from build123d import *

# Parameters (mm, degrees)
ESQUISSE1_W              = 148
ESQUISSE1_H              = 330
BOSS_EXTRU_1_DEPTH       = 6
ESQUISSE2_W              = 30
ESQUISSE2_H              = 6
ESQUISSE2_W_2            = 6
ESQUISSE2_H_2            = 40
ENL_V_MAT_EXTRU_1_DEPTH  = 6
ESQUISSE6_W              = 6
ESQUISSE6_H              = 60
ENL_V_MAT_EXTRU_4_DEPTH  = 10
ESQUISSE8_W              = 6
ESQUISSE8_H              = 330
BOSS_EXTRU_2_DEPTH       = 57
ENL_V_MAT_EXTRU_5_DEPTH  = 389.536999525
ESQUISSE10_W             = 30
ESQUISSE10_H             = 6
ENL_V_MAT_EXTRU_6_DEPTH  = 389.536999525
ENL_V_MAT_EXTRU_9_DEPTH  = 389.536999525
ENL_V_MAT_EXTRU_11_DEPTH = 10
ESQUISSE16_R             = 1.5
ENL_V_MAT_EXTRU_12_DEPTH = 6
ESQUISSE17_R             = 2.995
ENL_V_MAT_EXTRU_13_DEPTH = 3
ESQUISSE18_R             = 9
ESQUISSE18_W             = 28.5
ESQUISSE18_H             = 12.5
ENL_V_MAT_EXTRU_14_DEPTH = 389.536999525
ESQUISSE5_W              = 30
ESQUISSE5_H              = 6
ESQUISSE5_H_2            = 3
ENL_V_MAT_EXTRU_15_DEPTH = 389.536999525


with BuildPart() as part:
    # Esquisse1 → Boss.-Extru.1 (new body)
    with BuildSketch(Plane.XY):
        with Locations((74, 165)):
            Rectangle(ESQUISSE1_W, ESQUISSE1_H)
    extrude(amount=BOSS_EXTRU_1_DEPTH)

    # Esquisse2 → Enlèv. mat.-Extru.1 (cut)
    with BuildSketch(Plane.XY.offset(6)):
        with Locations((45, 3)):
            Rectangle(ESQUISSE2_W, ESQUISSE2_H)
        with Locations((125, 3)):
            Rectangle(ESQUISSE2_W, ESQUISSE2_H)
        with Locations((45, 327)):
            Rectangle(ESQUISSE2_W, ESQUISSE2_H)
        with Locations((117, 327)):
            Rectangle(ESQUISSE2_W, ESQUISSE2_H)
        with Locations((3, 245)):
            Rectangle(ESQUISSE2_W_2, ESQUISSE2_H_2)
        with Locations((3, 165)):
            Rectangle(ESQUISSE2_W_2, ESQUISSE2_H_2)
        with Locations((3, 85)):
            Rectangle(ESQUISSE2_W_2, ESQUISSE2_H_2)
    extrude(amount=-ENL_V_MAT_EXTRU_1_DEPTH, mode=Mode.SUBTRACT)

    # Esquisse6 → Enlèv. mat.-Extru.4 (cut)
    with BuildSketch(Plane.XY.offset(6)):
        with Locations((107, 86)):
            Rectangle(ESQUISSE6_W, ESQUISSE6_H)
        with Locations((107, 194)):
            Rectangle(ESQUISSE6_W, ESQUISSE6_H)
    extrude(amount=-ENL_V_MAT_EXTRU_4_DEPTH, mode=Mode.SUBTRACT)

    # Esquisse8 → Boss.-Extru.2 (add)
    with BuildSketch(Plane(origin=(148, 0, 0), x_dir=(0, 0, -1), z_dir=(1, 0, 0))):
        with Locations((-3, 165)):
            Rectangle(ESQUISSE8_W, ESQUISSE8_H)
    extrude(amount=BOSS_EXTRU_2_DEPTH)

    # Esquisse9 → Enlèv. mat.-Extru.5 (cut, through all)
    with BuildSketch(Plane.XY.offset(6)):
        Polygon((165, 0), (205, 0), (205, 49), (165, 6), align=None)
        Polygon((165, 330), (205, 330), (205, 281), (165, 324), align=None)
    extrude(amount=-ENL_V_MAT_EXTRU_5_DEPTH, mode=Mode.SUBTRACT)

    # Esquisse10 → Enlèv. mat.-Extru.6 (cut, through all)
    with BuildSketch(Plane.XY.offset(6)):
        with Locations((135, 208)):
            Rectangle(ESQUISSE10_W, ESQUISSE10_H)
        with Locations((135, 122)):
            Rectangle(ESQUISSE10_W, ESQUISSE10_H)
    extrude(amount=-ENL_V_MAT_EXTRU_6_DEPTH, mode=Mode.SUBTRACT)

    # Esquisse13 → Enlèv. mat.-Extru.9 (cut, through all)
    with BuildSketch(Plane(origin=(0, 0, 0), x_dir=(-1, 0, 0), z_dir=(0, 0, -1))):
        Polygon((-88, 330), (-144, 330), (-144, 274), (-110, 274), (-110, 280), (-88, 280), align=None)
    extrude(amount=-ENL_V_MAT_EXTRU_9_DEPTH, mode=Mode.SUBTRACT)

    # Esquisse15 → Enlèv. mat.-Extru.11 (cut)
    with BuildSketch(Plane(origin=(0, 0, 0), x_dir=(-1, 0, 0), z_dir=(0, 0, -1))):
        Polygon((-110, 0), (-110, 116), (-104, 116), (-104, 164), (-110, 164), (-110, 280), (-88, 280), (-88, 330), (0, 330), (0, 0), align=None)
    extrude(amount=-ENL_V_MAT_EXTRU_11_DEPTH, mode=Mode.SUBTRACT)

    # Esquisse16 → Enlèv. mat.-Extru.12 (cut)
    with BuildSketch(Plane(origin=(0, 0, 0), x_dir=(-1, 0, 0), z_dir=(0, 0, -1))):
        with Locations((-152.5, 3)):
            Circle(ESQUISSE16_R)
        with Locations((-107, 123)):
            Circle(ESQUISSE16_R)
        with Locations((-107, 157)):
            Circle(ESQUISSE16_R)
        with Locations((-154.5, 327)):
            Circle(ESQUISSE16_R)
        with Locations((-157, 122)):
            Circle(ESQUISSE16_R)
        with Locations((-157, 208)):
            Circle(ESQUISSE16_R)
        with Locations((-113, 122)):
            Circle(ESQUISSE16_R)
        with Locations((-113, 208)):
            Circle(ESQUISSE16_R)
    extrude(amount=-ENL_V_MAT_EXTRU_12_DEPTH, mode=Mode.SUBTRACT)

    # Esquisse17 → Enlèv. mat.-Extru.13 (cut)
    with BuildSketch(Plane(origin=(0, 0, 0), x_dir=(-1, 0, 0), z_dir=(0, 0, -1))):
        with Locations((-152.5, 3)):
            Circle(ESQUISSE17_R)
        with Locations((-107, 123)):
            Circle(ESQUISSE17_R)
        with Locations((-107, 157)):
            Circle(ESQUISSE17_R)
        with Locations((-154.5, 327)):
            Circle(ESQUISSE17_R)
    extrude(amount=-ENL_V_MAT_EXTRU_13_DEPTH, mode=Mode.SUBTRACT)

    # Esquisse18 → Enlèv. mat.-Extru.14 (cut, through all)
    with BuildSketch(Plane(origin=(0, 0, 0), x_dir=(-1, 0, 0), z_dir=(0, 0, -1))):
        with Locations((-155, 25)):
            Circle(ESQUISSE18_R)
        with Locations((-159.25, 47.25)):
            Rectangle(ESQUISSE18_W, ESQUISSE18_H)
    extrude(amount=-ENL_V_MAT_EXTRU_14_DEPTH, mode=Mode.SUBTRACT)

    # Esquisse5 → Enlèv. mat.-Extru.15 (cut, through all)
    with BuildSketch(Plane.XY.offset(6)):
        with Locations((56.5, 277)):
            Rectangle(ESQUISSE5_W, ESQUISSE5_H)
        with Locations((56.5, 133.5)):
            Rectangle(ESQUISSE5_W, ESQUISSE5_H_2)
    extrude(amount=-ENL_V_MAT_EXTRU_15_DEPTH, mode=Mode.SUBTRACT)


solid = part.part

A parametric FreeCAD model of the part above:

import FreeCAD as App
import Part
import Sketcher

V = App.Vector

doc = App.newDocument("Part")
body = doc.addObject("PartDesign::Body", "Body")

sketch1 = doc.addObject("Sketcher::SketchObject", "Sketch")
body.addObject(sketch1)
sketch1.AttachmentSupport = (doc.XY_Plane, [""])
sketch1.MapMode = "FlatFace"
sketch1.addGeometry([
    Part.LineSegment(V(0, 330, 0), V(0, 0, 0)),
    Part.LineSegment(V(0, 0, 0), V(148, 0, 0)),
    Part.LineSegment(V(148, 0, 0), V(148, 330, 0)),
    Part.LineSegment(V(148, 330, 0), V(0, 330, 0)),
], False)
sketch1.addConstraint([
    Sketcher.Constraint("Coincident", 0, 2, 1, 1),
    Sketcher.Constraint("Coincident", 1, 2, 2, 1),
    Sketcher.Constraint("Coincident", 2, 2, 3, 1),
    Sketcher.Constraint("Coincident", 3, 2, 0, 1),
    Sketcher.Constraint("Vertical", 0),
    Sketcher.Constraint("Horizontal", 1),
    Sketcher.Constraint("Vertical", 2),
    Sketcher.Constraint("Horizontal", 3),
    Sketcher.Constraint("Coincident", 0, 2, -1, 1),
    Sketcher.Constraint("DistanceX", 1, 1, 1, 2, 148.0),
    Sketcher.Constraint("DistanceY", 0, 2, 0, 1, 330.0),
])
pad1 = doc.addObject("PartDesign::Pad", "Pad")
body.addObject(pad1)
pad1.Profile = sketch1
pad1.Length = 6

sketch2 = doc.addObject("Sketcher::SketchObject", "Sketch001")
body.addObject(sketch2)
sketch2.AttachmentSupport = (doc.XY_Plane, [""])
sketch2.MapMode = "FlatFace"
sketch2.AttachmentOffset = App.Placement(V(0, 0, 6), App.Rotation())
sketch2.addGeometry([
    Part.LineSegment(V(30, 6, 0), V(30, 0, 0)),
    Part.LineSegment(V(30, 0, 0), V(60, 0, 0)),
    Part.LineSegment(V(60, 0, 0), V(60, 6, 0)),
    Part.LineSegment(V(60, 6, 0), V(30, 6, 0)),
    Part.LineSegment(V(110, 6, 0), V(110, 0, 0)),
    Part.LineSegment(V(110, 0, 0), V(140, 0, 0)),
    Part.LineSegment(V(140, 0, 0), V(140, 6, 0)),
    Part.LineSegment(V(140, 6, 0), V(110, 6, 0)),
    Part.LineSegment(V(30, 330, 0), V(30, 324, 0)),
    Part.LineSegment(V(30, 324, 0), V(60, 324, 0)),
    Part.LineSegment(V(60, 324, 0), V(60, 330, 0)),
    Part.LineSegment(V(60, 330, 0), V(30, 330, 0)),
    Part.LineSegment(V(102, 330, 0), V(102, 324, 0)),
    Part.LineSegment(V(102, 324, 0), V(132, 324, 0)),
    Part.LineSegment(V(132, 324, 0), V(132, 330, 0)),
    Part.LineSegment(V(132, 330, 0), V(102, 330, 0)),
    Part.LineSegment(V(0, 265, 0), V(0, 225, 0)),
    Part.LineSegment(V(0, 225, 0), V(6, 225, 0)),
    Part.LineSegment(V(6, 225, 0), V(6, 265, 0)),
    Part.LineSegment(V(6, 265, 0), V(0, 265, 0)),
    Part.LineSegment(V(0, 185, 0), V(0, 145, 0)),
    Part.LineSegment(V(0, 145, 0), V(6, 145, 0)),
    Part.LineSegment(V(6, 145, 0), V(6, 185, 0)),
    Part.LineSegment(V(6, 185, 0), V(0, 185, 0)),
    Part.LineSegment(V(0, 105, 0), V(0, 65, 0)),
    Part.LineSegment(V(0, 65, 0), V(6, 65, 0)),
    Part.LineSegment(V(6, 65, 0), V(6, 105, 0)),
    Part.LineSegment(V(6, 105, 0), V(0, 105, 0)),
], False)
sketch2.addConstraint([
    Sketcher.Constraint("Coincident", 0, 2, 1, 1),
    Sketcher.Constraint("Coincident", 1, 2, 2, 1),
    Sketcher.Constraint("Coincident", 2, 2, 3, 1),
    Sketcher.Constraint("Coincident", 3, 2, 0, 1),
    Sketcher.Constraint("Coincident", 4, 2, 5, 1),
    Sketcher.Constraint("Coincident", 5, 2, 6, 1),
    Sketcher.Constraint("Coincident", 6, 2, 7, 1),
    Sketcher.Constraint("Coincident", 7, 2, 4, 1),
    Sketcher.Constraint("Coincident", 8, 2, 9, 1),
    Sketcher.Constraint("Coincident", 9, 2, 10, 1),
    Sketcher.Constraint("Coincident", 10, 2, 11, 1),
    Sketcher.Constraint("Coincident", 11, 2, 8, 1),
    Sketcher.Constraint("Coincident", 12, 2, 13, 1),
    Sketcher.Constraint("Coincident", 13, 2, 14, 1),
    Sketcher.Constraint("Coincident", 14, 2, 15, 1),
    Sketcher.Constraint("Coincident", 15, 2, 12, 1),
    Sketcher.Constraint("Coincident", 16, 2, 17, 1),
    Sketcher.Constraint("Coincident", 17, 2, 18, 1),
    Sketcher.Constraint("Coincident", 18, 2, 19, 1),
    Sketcher.Constraint("Coincident", 19, 2, 16, 1),
    Sketcher.Constraint("Coincident", 20, 2, 21, 1),
    Sketcher.Constraint("Coincident", 21, 2, 22, 1),
    Sketcher.Constraint("Coincident", 22, 2, 23, 1),
    Sketcher.Constraint("Coincident", 23, 2, 20, 1),
    Sketcher.Constraint("Coincident", 24, 2, 25, 1),
    Sketcher.Constraint("Coincident", 25, 2, 26, 1),
    Sketcher.Constraint("Coincident", 26, 2, 27, 1),
    Sketcher.Constraint("Coincident", 27, 2, 24, 1),
    Sketcher.Constraint("Vertical", 0),
    Sketcher.Constraint("Horizontal", 1),
    Sketcher.Constraint("Vertical", 2),
    Sketcher.Constraint("Horizontal", 3),
    Sketcher.Constraint("Vertical", 4),
    Sketcher.Constraint("Horizontal", 5),
    Sketcher.Constraint("Vertical", 6),
    Sketcher.Constraint("Horizontal", 7),
    Sketcher.Constraint("Vertical", 8),
    Sketcher.Constraint("Horizontal", 9),
    Sketcher.Constraint("Vertical", 10),
    Sketcher.Constraint("Horizontal", 11),
    Sketcher.Constraint("Vertical", 12),
    Sketcher.Constraint("Horizontal", 13),
    Sketcher.Constraint("Vertical", 14),
    Sketcher.Constraint("Horizontal", 15),
    Sketcher.Constraint("Vertical", 16),
    Sketcher.Constraint("Horizontal", 17),
    Sketcher.Constraint("Vertical", 18),
    Sketcher.Constraint("Horizontal", 19),
    Sketcher.Constraint("Vertical", 20),
    Sketcher.Constraint("Horizontal", 21),
    Sketcher.Constraint("Vertical", 22),
    Sketcher.Constraint("Horizontal", 23),
    Sketcher.Constraint("Vertical", 24),
    Sketcher.Constraint("Horizontal", 25),
    Sketcher.Constraint("Vertical", 26),
    Sketcher.Constraint("Horizontal", 27),
    Sketcher.Constraint("PointOnObject", 0, 2, -1),
    Sketcher.Constraint("PointOnObject", 4, 2, -1),
    Sketcher.Constraint("PointOnObject", 16, 2, -2),
    Sketcher.Constraint("PointOnObject", 20, 2, -2),
    Sketcher.Constraint("PointOnObject", 24, 2, -2),
    Sketcher.Constraint("Horizontal", 3, 2, 6, 2),
    Sketcher.Constraint("Horizontal", 9, 2, 12, 2),
    Sketcher.Constraint("Horizontal", 11, 2, 14, 2),
    Sketcher.Constraint("Vertical", 3, 2, 8, 2),
    Sketcher.Constraint("Vertical", 2, 2, 9, 2),
    Sketcher.Constraint("Vertical", 18, 2, 21, 2),
    Sketcher.Constraint("Vertical", 22, 2, 25, 2),
    Sketcher.Constraint("Equal", 3, 5),
    Sketcher.Constraint("Equal", 11, 13),
    Sketcher.Constraint("Equal", 27, 0),
    Sketcher.Constraint("Equal", 6, 8),
    Sketcher.Constraint("Equal", 18, 20),
    Sketcher.Constraint("Equal", 22, 24),
    Sketcher.Constraint("DistanceX", 1, 1, 1, 2, 30.0),
    Sketcher.Constraint("DistanceX", 17, 1, 17, 2, 6.0),
    Sketcher.Constraint("DistanceY", 16, 2, 16, 1, 40.0),
    Sketcher.Constraint("DistanceX", -1, 1, 0, 2, 30.0),
    Sketcher.Constraint("DistanceX", -1, 1, 4, 2, 110.0),
    Sketcher.Constraint("DistanceY", -1, 1, 8, 2, 324.0),
    Sketcher.Constraint("DistanceX", -1, 1, 12, 2, 102.0),
    Sketcher.Constraint("DistanceY", -1, 1, 16, 2, 225.0),
    Sketcher.Constraint("DistanceY", -1, 1, 20, 2, 145.0),
    Sketcher.Constraint("DistanceY", -1, 1, 24, 2, 65.0),
])
pocket1 = doc.addObject("PartDesign::Pocket", "Pocket")
body.addObject(pocket1)
pocket1.Profile = sketch2
pocket1.Length = 6

sketch3 = doc.addObject("Sketcher::SketchObject", "Sketch002")
body.addObject(sketch3)
sketch3.AttachmentSupport = (doc.XY_Plane, [""])
sketch3.MapMode = "FlatFace"
sketch3.AttachmentOffset = App.Placement(V(0, 0, 6), App.Rotation())
sketch3.addGeometry([
    Part.LineSegment(V(104, 116, 0), V(104, 56, 0)),
    Part.LineSegment(V(104, 56, 0), V(110, 56, 0)),
    Part.LineSegment(V(110, 56, 0), V(110, 116, 0)),
    Part.LineSegment(V(110, 116, 0), V(104, 116, 0)),
    Part.LineSegment(V(104, 224, 0), V(104, 164, 0)),
    Part.LineSegment(V(104, 164, 0), V(110, 164, 0)),
    Part.LineSegment(V(110, 164, 0), V(110, 224, 0)),
    Part.LineSegment(V(110, 224, 0), V(104, 224, 0)),
], False)
sketch3.addConstraint([
    Sketcher.Constraint("Coincident", 0, 2, 1, 1),
    Sketcher.Constraint("Coincident", 1, 2, 2, 1),
    Sketcher.Constraint("Coincident", 2, 2, 3, 1),
    Sketcher.Constraint("Coincident", 3, 2, 0, 1),
    Sketcher.Constraint("Coincident", 4, 2, 5, 1),
    Sketcher.Constraint("Coincident", 5, 2, 6, 1),
    Sketcher.Constraint("Coincident", 6, 2, 7, 1),
    Sketcher.Constraint("Coincident", 7, 2, 4, 1),
    Sketcher.Constraint("Vertical", 0),
    Sketcher.Constraint("Horizontal", 1),
    Sketcher.Constraint("Vertical", 2),
    Sketcher.Constraint("Horizontal", 3),
    Sketcher.Constraint("Vertical", 4),
    Sketcher.Constraint("Horizontal", 5),
    Sketcher.Constraint("Vertical", 6),
    Sketcher.Constraint("Horizontal", 7),
    Sketcher.Constraint("Vertical", 3, 2, 4, 2),
    Sketcher.Constraint("Vertical", 2, 2, 5, 2),
    Sketcher.Constraint("Equal", 2, 4),
    Sketcher.Constraint("DistanceX", 1, 1, 1, 2, 6.0),
    Sketcher.Constraint("DistanceY", 0, 2, 0, 1, 60.0),
    Sketcher.Constraint("DistanceX", -1, 1, 0, 2, 104.0),
    Sketcher.Constraint("DistanceY", -1, 1, 0, 2, 56.0),
    Sketcher.Constraint("DistanceY", -1, 1, 4, 2, 164.0),
])
pocket2 = doc.addObject("PartDesign::Pocket", "Pocket001")
body.addObject(pocket2)
pocket2.Profile = sketch3
pocket2.Length = 10

sketch4 = doc.addObject("Sketcher::SketchObject", "Sketch003")
body.addObject(sketch4)
sketch4.AttachmentSupport = (doc.YZ_Plane, [""])
sketch4.MapMode = "FlatFace"
sketch4.AttachmentOffset = App.Placement(V(0, 0, 148), App.Rotation())
sketch4.addGeometry([
    Part.LineSegment(V(330, 6, 0), V(0, 6, 0)),
    Part.LineSegment(V(0, 6, 0), V(0, 0, 0)),
    Part.LineSegment(V(0, 0, 0), V(330, 0, 0)),
    Part.LineSegment(V(330, 0, 0), V(330, 6, 0)),
], False)
sketch4.addConstraint([
    Sketcher.Constraint("Coincident", 0, 2, 1, 1),
    Sketcher.Constraint("Coincident", 1, 2, 2, 1),
    Sketcher.Constraint("Coincident", 2, 2, 3, 1),
    Sketcher.Constraint("Coincident", 3, 2, 0, 1),
    Sketcher.Constraint("Horizontal", 0),
    Sketcher.Constraint("Vertical", 1),
    Sketcher.Constraint("Horizontal", 2),
    Sketcher.Constraint("Vertical", 3),
    Sketcher.Constraint("Coincident", 1, 2, -1, 1),
    Sketcher.Constraint("DistanceX", 0, 2, 0, 1, 330.0),
    Sketcher.Constraint("DistanceY", 1, 2, 1, 1, 6.0),
])
pad2 = doc.addObject("PartDesign::Pad", "Pad001")
body.addObject(pad2)
pad2.Profile = sketch4
pad2.Length = 57

sketch5 = doc.addObject("Sketcher::SketchObject", "Sketch004")
body.addObject(sketch5)
sketch5.AttachmentSupport = (doc.XY_Plane, [""])
sketch5.MapMode = "FlatFace"
sketch5.AttachmentOffset = App.Placement(V(0, 0, 6), App.Rotation())
sketch5.addGeometry([
    Part.LineSegment(V(165, 0, 0), V(205, 0, 0)),
    Part.LineSegment(V(205, 0, 0), V(205, 49, 0)),
    Part.LineSegment(V(205, 49, 0), V(165, 6, 0)),
    Part.LineSegment(V(165, 6, 0), V(165, 0, 0)),
    Part.LineSegment(V(205, 330, 0), V(165, 330, 0)),
    Part.LineSegment(V(165, 330, 0), V(165, 324, 0)),
    Part.LineSegment(V(165, 324, 0), V(205, 281, 0)),
    Part.LineSegment(V(205, 281, 0), V(205, 330, 0)),
], False)
sketch5.addConstraint([
    Sketcher.Constraint("Coincident", 0, 2, 1, 1),
    Sketcher.Constraint("Coincident", 1, 2, 2, 1),
    Sketcher.Constraint("Coincident", 2, 2, 3, 1),
    Sketcher.Constraint("Coincident", 3, 2, 0, 1),
    Sketcher.Constraint("Coincident", 4, 2, 5, 1),
    Sketcher.Constraint("Coincident", 5, 2, 6, 1),
    Sketcher.Constraint("Coincident", 6, 2, 7, 1),
    Sketcher.Constraint("Coincident", 7, 2, 4, 1),
    Sketcher.Constraint("Horizontal", 0),
    Sketcher.Constraint("Vertical", 1),
    Sketcher.Constraint("Vertical", 3),
    Sketcher.Constraint("Horizontal", 4),
    Sketcher.Constraint("Vertical", 5),
    Sketcher.Constraint("Vertical", 7),
    Sketcher.Constraint("PointOnObject", 0, 2, -1),
    Sketcher.Constraint("Vertical", 3, 2, 4, 2),
    Sketcher.Constraint("Vertical", 1, 2, 6, 2),
    Sketcher.Constraint("Equal", 3, 5),
    Sketcher.Constraint("Equal", 1, 7),
    Sketcher.Constraint("DistanceX", 0, 1, 0, 2, 40.0),
    Sketcher.Constraint("DistanceY", 1, 1, 1, 2, 49.0),
    Sketcher.Constraint("DistanceY", 3, 2, 3, 1, 6.0),
    Sketcher.Constraint("DistanceX", -1, 1, 0, 2, 205.0),
    Sketcher.Constraint("DistanceY", -1, 1, 4, 2, 330.0),
])
pocket3 = doc.addObject("PartDesign::Pocket", "Pocket002")
body.addObject(pocket3)
pocket3.Profile = sketch5
pocket3.Type = "ThroughAll"

sketch6 = doc.addObject("Sketcher::SketchObject", "Sketch005")
body.addObject(sketch6)
sketch6.AttachmentSupport = (doc.XY_Plane, [""])
sketch6.MapMode = "FlatFace"
sketch6.AttachmentOffset = App.Placement(V(0, 0, 6), App.Rotation())
sketch6.addGeometry([
    Part.LineSegment(V(120, 211, 0), V(120, 205, 0)),
    Part.LineSegment(V(120, 205, 0), V(150, 205, 0)),
    Part.LineSegment(V(150, 205, 0), V(150, 211, 0)),
    Part.LineSegment(V(150, 211, 0), V(120, 211, 0)),
    Part.LineSegment(V(120, 125, 0), V(120, 119, 0)),
    Part.LineSegment(V(120, 119, 0), V(150, 119, 0)),
    Part.LineSegment(V(150, 119, 0), V(150, 125, 0)),
    Part.LineSegment(V(150, 125, 0), V(120, 125, 0)),
], False)
sketch6.addConstraint([
    Sketcher.Constraint("Coincident", 0, 2, 1, 1),
    Sketcher.Constraint("Coincident", 1, 2, 2, 1),
    Sketcher.Constraint("Coincident", 2, 2, 3, 1),
    Sketcher.Constraint("Coincident", 3, 2, 0, 1),
    Sketcher.Constraint("Coincident", 4, 2, 5, 1),
    Sketcher.Constraint("Coincident", 5, 2, 6, 1),
    Sketcher.Constraint("Coincident", 6, 2, 7, 1),
    Sketcher.Constraint("Coincident", 7, 2, 4, 1),
    Sketcher.Constraint("Vertical", 0),
    Sketcher.Constraint("Horizontal", 1),
    Sketcher.Constraint("Vertical", 2),
    Sketcher.Constraint("Horizontal", 3),
    Sketcher.Constraint("Vertical", 4),
    Sketcher.Constraint("Horizontal", 5),
    Sketcher.Constraint("Vertical", 6),
    Sketcher.Constraint("Horizontal", 7),
    Sketcher.Constraint("Vertical", 3, 2, 4, 2),
    Sketcher.Constraint("Vertical", 2, 2, 5, 2),
    Sketcher.Constraint("Equal", 2, 4),
    Sketcher.Constraint("DistanceX", 1, 1, 1, 2, 30.0),
    Sketcher.Constraint("DistanceY", 0, 2, 0, 1, 6.0),
    Sketcher.Constraint("DistanceX", -1, 1, 0, 2, 120.0),
    Sketcher.Constraint("DistanceY", -1, 1, 0, 2, 205.0),
    Sketcher.Constraint("DistanceY", -1, 1, 4, 2, 119.0),
])
pocket4 = doc.addObject("PartDesign::Pocket", "Pocket003")
body.addObject(pocket4)
pocket4.Profile = sketch6
pocket4.Type = "ThroughAll"

sketch7 = doc.addObject("Sketcher::SketchObject", "Sketch006")
body.addObject(sketch7)
sketch7.AttachmentSupport = (doc.XY_Plane, [""])
sketch7.MapMode = "FlatFace"
sketch7.addGeometry([
    Part.LineSegment(V(88, 330, 0), V(144, 330, 0)),
    Part.LineSegment(V(144, 330, 0), V(144, 274, 0)),
    Part.LineSegment(V(144, 274, 0), V(110, 274, 0)),
    Part.LineSegment(V(110, 274, 0), V(110, 280, 0)),
    Part.LineSegment(V(110, 280, 0), V(88, 280, 0)),
    Part.LineSegment(V(88, 280, 0), V(88, 330, 0)),
], False)
sketch7.addConstraint([
    Sketcher.Constraint("Coincident", 0, 2, 1, 1),
    Sketcher.Constraint("Coincident", 1, 2, 2, 1),
    Sketcher.Constraint("Coincident", 2, 2, 3, 1),
    Sketcher.Constraint("Coincident", 3, 2, 4, 1),
    Sketcher.Constraint("Coincident", 4, 2, 5, 1),
    Sketcher.Constraint("Coincident", 5, 2, 0, 1),
    Sketcher.Constraint("Horizontal", 0),
    Sketcher.Constraint("Vertical", 1),
    Sketcher.Constraint("Horizontal", 2),
    Sketcher.Constraint("Vertical", 3),
    Sketcher.Constraint("Horizontal", 4),
    Sketcher.Constraint("Vertical", 5),
    Sketcher.Constraint("Equal", 0, 1),
    Sketcher.Constraint("DistanceX", 0, 1, 0, 2, 56.0),
    Sketcher.Constraint("DistanceX", 2, 2, 2, 1, 34.0),
    Sketcher.Constraint("DistanceY", 3, 1, 3, 2, 6.0),
    Sketcher.Constraint("DistanceX", -1, 1, 0, 2, 144.0),
    Sketcher.Constraint("DistanceY", -1, 1, 0, 2, 330.0),
])
pocket5 = doc.addObject("PartDesign::Pocket", "Pocket004")
body.addObject(pocket5)
pocket5.Profile = sketch7
pocket5.Type = "ThroughAll"
pocket5.Reversed = True

sketch8 = doc.addObject("Sketcher::SketchObject", "Sketch007")
body.addObject(sketch8)
sketch8.AttachmentSupport = (doc.XY_Plane, [""])
sketch8.MapMode = "FlatFace"
sketch8.addGeometry([
    Part.LineSegment(V(110, 116, 0), V(110, 0, 0)),
    Part.LineSegment(V(110, 0, 0), V(0, 0, 0)),
    Part.LineSegment(V(0, 0, 0), V(0, 330, 0)),
    Part.LineSegment(V(0, 330, 0), V(88, 330, 0)),
    Part.LineSegment(V(88, 330, 0), V(88, 280, 0)),
    Part.LineSegment(V(88, 280, 0), V(110, 280, 0)),
    Part.LineSegment(V(110, 280, 0), V(110, 164, 0)),
    Part.LineSegment(V(110, 164, 0), V(104, 164, 0)),
    Part.LineSegment(V(104, 164, 0), V(104, 116, 0)),
    Part.LineSegment(V(104, 116, 0), V(110, 116, 0)),
], False)
sketch8.addConstraint([
    Sketcher.Constraint("Coincident", 0, 2, 1, 1),
    Sketcher.Constraint("Coincident", 1, 2, 2, 1),
    Sketcher.Constraint("Coincident", 2, 2, 3, 1),
    Sketcher.Constraint("Coincident", 3, 2, 4, 1),
    Sketcher.Constraint("Coincident", 4, 2, 5, 1),
    Sketcher.Constraint("Coincident", 5, 2, 6, 1),
    Sketcher.Constraint("Coincident", 6, 2, 7, 1),
    Sketcher.Constraint("Coincident", 7, 2, 8, 1),
    Sketcher.Constraint("Coincident", 8, 2, 9, 1),
    Sketcher.Constraint("Coincident", 9, 2, 0, 1),
    Sketcher.Constraint("Vertical", 0),
    Sketcher.Constraint("Horizontal", 1),
    Sketcher.Constraint("Vertical", 2),
    Sketcher.Constraint("Horizontal", 3),
    Sketcher.Constraint("Vertical", 4),
    Sketcher.Constraint("Horizontal", 5),
    Sketcher.Constraint("Vertical", 6),
    Sketcher.Constraint("Horizontal", 7),
    Sketcher.Constraint("Vertical", 8),
    Sketcher.Constraint("Horizontal", 9),
    Sketcher.Constraint("Coincident", 1, 2, -1, 1),
    Sketcher.Constraint("Vertical", 0, 2, 5, 2),
    Sketcher.Constraint("Equal", 0, 6),
    Sketcher.Constraint("DistanceX", 1, 2, 1, 1, 110.0),
    Sketcher.Constraint("DistanceX", 3, 1, 3, 2, 88.0),
    Sketcher.Constraint("DistanceX", 7, 2, 7, 1, 6.0),
    Sketcher.Constraint("DistanceY", 0, 2, 0, 1, 116.0),
    Sketcher.Constraint("DistanceY", 2, 1, 2, 2, 330.0),
    Sketcher.Constraint("DistanceY", 4, 2, 4, 1, 50.0),
])
pocket6 = doc.addObject("PartDesign::Pocket", "Pocket005")
body.addObject(pocket6)
pocket6.Profile = sketch8
pocket6.Length = 10
pocket6.Reversed = True

sketch9 = doc.addObject("Sketcher::SketchObject", "Sketch008")
body.addObject(sketch9)
sketch9.AttachmentSupport = (doc.XY_Plane, [""])
sketch9.MapMode = "FlatFace"
sketch9.addGeometry([
    Part.Circle(V(152.5, 3, 0), V(0, 0, 1), 1.5),
    Part.Circle(V(107, 123, 0), V(0, 0, 1), 1.5),
    Part.Circle(V(107, 157, 0), V(0, 0, 1), 1.5),
    Part.Circle(V(154.5, 327, 0), V(0, 0, 1), 1.5),
    Part.Circle(V(157, 122, 0), V(0, 0, 1), 1.5),
    Part.Circle(V(157, 208, 0), V(0, 0, 1), 1.5),
    Part.Circle(V(113, 122, 0), V(0, 0, 1), 1.5),
    Part.Circle(V(113, 208, 0), V(0, 0, 1), 1.5),
], False)
sketch9.addConstraint([
    Sketcher.Constraint("Equal", 0, 1),
    Sketcher.Constraint("Equal", 1, 2),
    Sketcher.Constraint("Equal", 2, 3),
    Sketcher.Constraint("Equal", 3, 4),
    Sketcher.Constraint("Equal", 4, 5),
    Sketcher.Constraint("Equal", 5, 6),
    Sketcher.Constraint("Equal", 6, 7),
    Sketcher.Constraint("Horizontal", 4, 3, 6, 3),
    Sketcher.Constraint("Horizontal", 5, 3, 7, 3),
    Sketcher.Constraint("Vertical", 1, 3, 2, 3),
    Sketcher.Constraint("Vertical", 4, 3, 5, 3),
    Sketcher.Constraint("Vertical", 6, 3, 7, 3),
    Sketcher.Constraint("Diameter", 0, 3.0),
    Sketcher.Constraint("DistanceY", -1, 1, 0, 3, 3.0),
    Sketcher.Constraint("DistanceX", -1, 1, 1, 3, 107.0),
    Sketcher.Constraint("DistanceY", -1, 1, 1, 3, 123.0),
    Sketcher.Constraint("DistanceY", -1, 1, 2, 3, 157.0),
    Sketcher.Constraint("DistanceY", -1, 1, 3, 3, 327.0),
    Sketcher.Constraint("DistanceX", -1, 1, 4, 3, 157.0),
    Sketcher.Constraint("DistanceY", -1, 1, 4, 3, 122.0),
    Sketcher.Constraint("DistanceY", -1, 1, 5, 3, 208.0),
    Sketcher.Constraint("DistanceX", -1, 1, 6, 3, 113.0),
    Sketcher.Constraint("DistanceX", 0, 3, 3, 3, 2.0),
    Sketcher.Constraint("DistanceX", -1, 1, 0, 3, 152.5),
])
pocket7 = doc.addObject("PartDesign::Pocket", "Pocket006")
body.addObject(pocket7)
pocket7.Profile = sketch9
pocket7.Length = 6
pocket7.Reversed = True

sketch10 = doc.addObject("Sketcher::SketchObject", "Sketch009")
body.addObject(sketch10)
sketch10.AttachmentSupport = (doc.XY_Plane, [""])
sketch10.MapMode = "FlatFace"
sketch10.addGeometry([
    Part.Circle(V(152.5, 3, 0), V(0, 0, 1), 3),
    Part.Circle(V(107, 123, 0), V(0, 0, 1), 3),
    Part.Circle(V(107, 157, 0), V(0, 0, 1), 3),
    Part.Circle(V(154.5, 327, 0), V(0, 0, 1), 3),
], False)
sketch10.addConstraint([
    Sketcher.Constraint("Equal", 0, 1),
    Sketcher.Constraint("Equal", 1, 2),
    Sketcher.Constraint("Equal", 2, 3),
    Sketcher.Constraint("Vertical", 1, 3, 2, 3),
    Sketcher.Constraint("Diameter", 0, 5.99),
    Sketcher.Constraint("DistanceY", -1, 1, 0, 3, 3.0),
    Sketcher.Constraint("DistanceX", -1, 1, 1, 3, 107.0),
    Sketcher.Constraint("DistanceY", -1, 1, 1, 3, 123.0),
    Sketcher.Constraint("DistanceY", -1, 1, 2, 3, 157.0),
    Sketcher.Constraint("DistanceY", -1, 1, 3, 3, 327.0),
    Sketcher.Constraint("DistanceX", 0, 3, 3, 3, 2.0),
    Sketcher.Constraint("DistanceX", -1, 1, 0, 3, 152.5),
])
pocket8 = doc.addObject("PartDesign::Pocket", "Pocket007")
body.addObject(pocket8)
pocket8.Profile = sketch10
pocket8.Length = 3
pocket8.Reversed = True

sketch11 = doc.addObject("Sketcher::SketchObject", "Sketch010")
body.addObject(sketch11)
sketch11.AttachmentSupport = (doc.XY_Plane, [""])
sketch11.MapMode = "FlatFace"
sketch11.addGeometry([
    Part.Circle(V(155, 25, 0), V(0, 0, 1), 9),
    Part.LineSegment(V(174, 54, 0), V(174, 41, 0)),
    Part.LineSegment(V(174, 41, 0), V(145, 41, 0)),
    Part.LineSegment(V(145, 41, 0), V(145, 54, 0)),
    Part.LineSegment(V(145, 54, 0), V(174, 54, 0)),
], False)
sketch11.addConstraint([
    Sketcher.Constraint("Coincident", 1, 2, 2, 1),
    Sketcher.Constraint("Coincident", 2, 2, 3, 1),
    Sketcher.Constraint("Coincident", 3, 2, 4, 1),
    Sketcher.Constraint("Coincident", 4, 2, 1, 1),
    Sketcher.Constraint("Vertical", 1),
    Sketcher.Constraint("Horizontal", 2),
    Sketcher.Constraint("Vertical", 3),
    Sketcher.Constraint("Horizontal", 4),
    Sketcher.Constraint("Diameter", 0, 18.0),
    Sketcher.Constraint("DistanceX", 2, 2, 2, 1, 28.5),
    Sketcher.Constraint("DistanceY", 1, 2, 1, 1, 12.5),
    Sketcher.Constraint("DistanceX", -1, 1, 0, 3, 155.0),
    Sketcher.Constraint("DistanceY", -1, 1, 0, 3, 25.0),
    Sketcher.Constraint("DistanceY", -1, 1, 1, 2, 41.0),
    Sketcher.Constraint("DistanceX", -1, 1, 2, 2, 145.0),
])
pocket9 = doc.addObject("PartDesign::Pocket", "Pocket008")
body.addObject(pocket9)
pocket9.Profile = sketch11
pocket9.Type = "ThroughAll"
pocket9.Reversed = True

sketch12 = doc.addObject("Sketcher::SketchObject", "Sketch011")
body.addObject(sketch12)
sketch12.AttachmentSupport = (doc.XY_Plane, [""])
sketch12.MapMode = "FlatFace"
sketch12.AttachmentOffset = App.Placement(V(0, 0, 6), App.Rotation())
sketch12.addGeometry([
    Part.LineSegment(V(41.5, 280, 0), V(41.5, 274, 0)),
    Part.LineSegment(V(41.5, 274, 0), V(71.5, 274, 0)),
    Part.LineSegment(V(71.5, 274, 0), V(71.5, 280, 0)),
    Part.LineSegment(V(71.5, 280, 0), V(41.5, 280, 0)),
    Part.LineSegment(V(41.5, 135, 0), V(41.5, 132, 0)),
    Part.LineSegment(V(41.5, 132, 0), V(71.5, 132, 0)),
    Part.LineSegment(V(71.5, 132, 0), V(71.5, 135, 0)),
    Part.LineSegment(V(71.5, 135, 0), V(41.5, 135, 0)),
], False)
sketch12.addConstraint([
    Sketcher.Constraint("Coincident", 0, 2, 1, 1),
    Sketcher.Constraint("Coincident", 1, 2, 2, 1),
    Sketcher.Constraint("Coincident", 2, 2, 3, 1),
    Sketcher.Constraint("Coincident", 3, 2, 0, 1),
    Sketcher.Constraint("Coincident", 4, 2, 5, 1),
    Sketcher.Constraint("Coincident", 5, 2, 6, 1),
    Sketcher.Constraint("Coincident", 6, 2, 7, 1),
    Sketcher.Constraint("Coincident", 7, 2, 4, 1),
    Sketcher.Constraint("Vertical", 0),
    Sketcher.Constraint("Horizontal", 1),
    Sketcher.Constraint("Vertical", 2),
    Sketcher.Constraint("Horizontal", 3),
    Sketcher.Constraint("Vertical", 4),
    Sketcher.Constraint("Horizontal", 5),
    Sketcher.Constraint("Vertical", 6),
    Sketcher.Constraint("Horizontal", 7),
    Sketcher.Constraint("Vertical", 3, 2, 4, 2),
    Sketcher.Constraint("Vertical", 2, 2, 5, 2),
    Sketcher.Constraint("DistanceX", 1, 1, 1, 2, 30.0),
    Sketcher.Constraint("DistanceY", 0, 2, 0, 1, 6.0),
    Sketcher.Constraint("DistanceY", 4, 2, 4, 1, 3.0),
    Sketcher.Constraint("DistanceY", -1, 1, 0, 2, 274.0),
    Sketcher.Constraint("DistanceY", -1, 1, 4, 2, 132.0),
    Sketcher.Constraint("DistanceX", -1, 1, 0, 2, 41.5),
])
pocket10 = doc.addObject("PartDesign::Pocket", "Pocket009")
body.addObject(pocket10)
pocket10.Profile = sketch12
pocket10.Type = "ThroughAll"

doc.recompute()
